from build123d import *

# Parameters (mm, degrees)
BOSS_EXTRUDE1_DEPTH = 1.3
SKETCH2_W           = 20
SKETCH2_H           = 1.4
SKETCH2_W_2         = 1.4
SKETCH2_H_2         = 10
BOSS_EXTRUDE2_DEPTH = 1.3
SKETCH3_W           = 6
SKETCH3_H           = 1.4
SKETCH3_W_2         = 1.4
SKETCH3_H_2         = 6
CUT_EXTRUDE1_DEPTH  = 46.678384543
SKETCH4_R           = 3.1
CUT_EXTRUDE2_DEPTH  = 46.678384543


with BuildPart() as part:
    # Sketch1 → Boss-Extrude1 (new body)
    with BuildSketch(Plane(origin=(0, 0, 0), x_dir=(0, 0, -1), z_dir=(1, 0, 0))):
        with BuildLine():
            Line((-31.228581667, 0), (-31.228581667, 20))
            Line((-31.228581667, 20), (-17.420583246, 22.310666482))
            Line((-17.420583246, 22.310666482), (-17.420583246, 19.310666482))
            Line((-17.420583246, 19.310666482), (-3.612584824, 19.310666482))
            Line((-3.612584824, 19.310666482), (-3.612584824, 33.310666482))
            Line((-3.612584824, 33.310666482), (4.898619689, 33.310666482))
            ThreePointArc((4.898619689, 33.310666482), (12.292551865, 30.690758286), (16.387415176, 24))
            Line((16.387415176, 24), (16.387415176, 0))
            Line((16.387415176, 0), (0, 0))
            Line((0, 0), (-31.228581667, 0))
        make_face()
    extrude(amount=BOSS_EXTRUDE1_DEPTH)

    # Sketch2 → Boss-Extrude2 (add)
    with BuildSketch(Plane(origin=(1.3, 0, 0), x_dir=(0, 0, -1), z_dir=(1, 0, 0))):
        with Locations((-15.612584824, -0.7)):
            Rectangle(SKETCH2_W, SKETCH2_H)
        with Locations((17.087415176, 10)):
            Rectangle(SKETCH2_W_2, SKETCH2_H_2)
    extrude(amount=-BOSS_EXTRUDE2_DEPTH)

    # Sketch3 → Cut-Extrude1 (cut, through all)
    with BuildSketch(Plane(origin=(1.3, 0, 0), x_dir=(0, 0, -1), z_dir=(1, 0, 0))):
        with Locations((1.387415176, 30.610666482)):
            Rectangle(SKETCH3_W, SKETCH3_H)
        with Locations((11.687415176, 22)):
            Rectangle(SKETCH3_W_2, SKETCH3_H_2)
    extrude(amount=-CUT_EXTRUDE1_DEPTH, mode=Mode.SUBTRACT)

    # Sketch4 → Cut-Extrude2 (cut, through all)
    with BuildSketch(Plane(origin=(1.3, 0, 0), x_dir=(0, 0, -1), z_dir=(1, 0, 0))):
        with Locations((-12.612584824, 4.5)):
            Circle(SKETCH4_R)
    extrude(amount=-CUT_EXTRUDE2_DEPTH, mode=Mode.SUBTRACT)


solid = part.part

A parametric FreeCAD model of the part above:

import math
import FreeCAD as App
import Part
import Sketcher

V = App.Vector
Q = App.Units.Quantity


def add_polygon(sketch, points):
    """Adds a closed chain of lines whose ends are joined by coincident constraints."""
    first, n = sketch.GeometryCount, len(points)
    for a, b in zip(points, points[1:] + points[:1]):
        sketch.addGeometry(Part.LineSegment(App.Vector(*a, 0), App.Vector(*b, 0)), False)
    for i in range(n):
        sketch.addConstraint(Sketcher.Constraint("Coincident", first + i, 2, first + (i + 1) % n, 1))

doc = App.newDocument("Part")
params = doc.addObject("Spreadsheet::Sheet", "Params")
for row, (alias, value) in enumerate([
    ("sketch1_width", "20 mm"),
    ("sketch1_width2", "24 mm"),
    ("sketch1_width3", "14 mm"),
    ("sketch1_width4", "3 mm"),
    ("sketch1_length", "14 mm"),
    ("pad1_length", "1.3 mm"),
    ("sketch2_width", "10 mm"),
    ("sketch2_height", "20 mm"),
    ("sketch2_width2", "1.4 mm"),
    ("pad2_length", "1.3 mm"),
    ("sketch3_width", "6 mm"),
    ("sketch3_width2", "1.4 mm"),
    ("sketch4_diameter", "6.2 mm"),
], start=1):
    params.set(f"A{row}", alias)
    params.set(f"B{row}", "=" + value)
    params.setAlias(f"B{row}", alias)

body = doc.addObject("PartDesign::Body", "Body")

sketch1 = body.newObject("Sketcher::SketchObject", "Sketch")
sketch1.AttachmentSupport = (doc.getObject("YZ_Plane"), [""])
sketch1.MapMode = "FlatFace"
sketch1.addGeometry(Part.LineSegment(V(20, 31.2, 0), V(0, 31.2, 0)), False)
sketch1.addGeometry(Part.LineSegment(V(0, 31.2, 0), V(0, -16.4, 0)), False)
sketch1.addGeometry(Part.LineSegment(V(0, -16.4, 0), V(24, -16.4, 0)), False)
sketch1.addGeometry(Part.ArcOfCircle(Part.Circle(V(21.6, -4.9, 0), V(0, 0, 1), 11.7), math.radians(-78), math.radians(0)), False)
sketch1.addGeometry(Part.LineSegment(V(33.3, -4.9, 0), V(33.3, 3.6, 0)), False)
sketch1.addGeometry(Part.LineSegment(V(33.3, 3.6, 0), V(19.3, 3.6, 0)), False)
sketch1.addGeometry(Part.LineSegment(V(19.3, 3.6, 0), V(19.3, 17.4, 0)), False)
sketch1.addGeometry(Part.LineSegment(V(19.3, 17.4, 0), V(22.3, 17.4, 0)), False)
sketch1.addGeometry(Part.LineSegment(V(22.3, 17.4, 0), V(20, 31.2, 0)), False)
sketch1.addConstraint(Sketcher.Constraint("Coincident", 0, 2, 1, 1))
sketch1.addConstraint(Sketcher.Constraint("Coincident", 1, 2, 2, 1))
sketch1.addConstraint(Sketcher.Constraint("Coincident", 2, 2, 3, 1))
sketch1.addConstraint(Sketcher.Constraint("Tangent", 3, 2, 4, 1))
sketch1.addConstraint(Sketcher.Constraint("Coincident", 4, 2, 5, 1))
sketch1.addConstraint(Sketcher.Constraint("Coincident", 5, 2, 6, 1))
sketch1.addConstraint(Sketcher.Constraint("Coincident", 6, 2, 7, 1))
sketch1.addConstraint(Sketcher.Constraint("Coincident", 7, 2, 8, 1))
sketch1.addConstraint(Sketcher.Constraint("Coincident", 8, 2, 0, 1))
sketch1.addConstraint(Sketcher.Constraint("Horizontal", 0))
sketch1.addConstraint(Sketcher.Constraint("Vertical", 1))
sketch1.addConstraint(Sketcher.Constraint("Horizontal", 2))
sketch1.addConstraint(Sketcher.Constraint("Vertical", 4))
sketch1.addConstraint(Sketcher.Constraint("Horizontal", 5))
sketch1.addConstraint(Sketcher.Constraint("Vertical", 6))
sketch1.addConstraint(Sketcher.Constraint("Horizontal", 7))
sketch1.addConstraint(Sketcher.Constraint("PointOnObject", 0, 2, -2))
sketch1.addConstraint(Sketcher.Constraint("DistanceX", 0, 2, 0, 1, 20.0))
sketch1.addConstraint(Sketcher.Constraint("DistanceX", 2, 1, 2, 2, 24.0))
sketch1.addConstraint(Sketcher.Constraint("DistanceX", 5, 2, 5, 1, 14.0))
sketch1.addConstraint(Sketcher.Constraint("DistanceX", 7, 1, 7, 2, 3.0))
sketch1.addConstraint(Sketcher.Constraint("Distance", 8, 14.0))
sketch1.addConstraint(Sketcher.Constraint("Angle", 8, Q("99.5 deg")))
sketch1.addConstraint(Sketcher.Constraint("DistanceY", 2, 2, 4, 2, 20.0))
sketch1.addConstraint(Sketcher.Constraint("DistanceY", 6, 1, 6, 2, 13.807998))
sketch1.addConstraint(Sketcher.Constraint("Radius", 3, 11.74357))
sketch1.addConstraint(Sketcher.Constraint("DistanceY", 3, 3, -1, 1, 4.89862))
sketch1.setExpression("Constraints[17]", "Params.sketch1_width")
sketch1.setExpression("Constraints[18]", "Params.sketch1_width2")
sketch1.setExpression("Constraints[19]", "Params.sketch1_width3")
sketch1.setExpression("Constraints[20]", "Params.sketch1_width4")
sketch1.setExpression("Constraints[21]", "Params.sketch1_length")
pad1 = body.newObject("PartDesign::Pad", "Pad")
pad1.Profile = sketch1
pad1.setExpression("Length", "Params.pad1_length")

sketch2 = body.newObject("Sketcher::SketchObject", "Sketch001")
sketch2.AttachmentSupport = (doc.getObject("YZ_Plane"), [""])
sketch2.MapMode = "FlatFace"
sketch2.AttachmentOffset = App.Placement(V(0, 0, 1.3), App.Rotation())
add_polygon(sketch2, [(0, 25.6), (-1.4, 25.6), (-1.4, 5.6), (0, 5.6)])
add_polygon(sketch2, [(15, -16.4), (5, -16.4), (5, -17.8), (15, -17.8)])
sketch2.addConstraint(Sketcher.Constraint("Horizontal", 0))
sketch2.addConstraint(Sketcher.Constraint("Vertical", 1))
sketch2.addConstraint(Sketcher.Constraint("Horizontal", 2))
sketch2.addConstraint(Sketcher.Constraint("Vertical", 3))
sketch2.addConstraint(Sketcher.Constraint("Horizontal", 4))
sketch2.addConstraint(Sketcher.Constraint("Vertical", 5))
sketch2.addConstraint(Sketcher.Constraint("Horizontal", 6))
sketch2.addConstraint(Sketcher.Constraint("Vertical", 7))
sketch2.addConstraint(Sketcher.Constraint("PointOnObject", 2, 2, -2))
sketch2.addConstraint(Sketcher.Constraint("Equal", 2, 5))
sketch2.addConstraint(Sketcher.Constraint("DistanceX", 4, 2, 4, 1, 10.0))
sketch2.addConstraint(Sketcher.Constraint("DistanceY", 1, 2, 1, 1, 20.0))
sketch2.addConstraint(Sketcher.Constraint("DistanceX", 0, 2, 0, 1, 1.4))
sketch2.addConstraint(Sketcher.Constraint("DistanceX", -1, 1, 4, 2, 5.0))
sketch2.addConstraint(Sketcher.Constraint("DistanceY", 4, 2, 2, 2, 22.0))
sketch2.addConstraint(Sketcher.Constraint("DistanceY", -1, 1, 0, 2, 25.612585))
sketch2.setExpression("Constraints[18]", "Params.sketch2_width")
sketch2.setExpression("Constraints[19]", "Params.sketch2_height")
sketch2.setExpression("Constraints[20]", "Params.sketch2_width2")
pad2 = body.newObject("PartDesign::Pad", "Pad001")
pad2.Profile = sketch2
pad2.setExpression("Length", "Params.pad2_length")
pad2.Reversed = True

sketch3 = body.newObject("Sketcher::SketchObject", "Sketch002")
sketch3.AttachmentSupport = (doc.getObject("YZ_Plane"), [""])
sketch3.MapMode = "FlatFace"
sketch3.AttachmentOffset = App.Placement(V(0, 0, 1.3), App.Rotation())
add_polygon(sketch3, [(31.3, 1.6), (29.9, 1.6), (29.9, -4.4), (31.3, -4.4)])
add_polygon(sketch3, [(25, -11), (19, -11), (19, -12.4), (25, -12.4)])
sketch3.addConstraint(Sketcher.Constraint("Horizontal", 0))
sketch3.addConstraint(Sketcher.Constraint("Vertical", 1))
sketch3.addConstraint(Sketcher.Constraint("Horizontal", 2))
sketch3.addConstraint(Sketcher.Constraint("Vertical", 3))
sketch3.addConstraint(Sketcher.Constraint("Horizontal", 4))
sketch3.addConstraint(Sketcher.Constraint("Vertical", 5))
sketch3.addConstraint(Sketcher.Constraint("Horizontal", 6))
sketch3.addConstraint(Sketcher.Constraint("Vertical", 7))
sketch3.addConstraint(Sketcher.Constraint("Equal", 6, 1))
sketch3.addConstraint(Sketcher.Constraint("Equal", 2, 5))
sketch3.addConstraint(Sketcher.Constraint("DistanceX", 4, 2, 4, 1, 6.0))
sketch3.addConstraint(Sketcher.Constraint("DistanceX", 0, 2, 0, 1, 1.4))
sketch3.addConstraint(Sketcher.Constraint("DistanceX", -1, 1, 4, 2, 19.0))
sketch3.addConstraint(Sketcher.Constraint("DistanceY", 5, 2, 1, 2, 8.0))
sketch3.addConstraint(Sketcher.Constraint("DistanceX", -1, 1, 0, 2, 29.910666))
sketch3.addConstraint(Sketcher.Constraint("DistanceY", -1, 1, 0, 2, 1.612585))
sketch3.setExpression("Constraints[18]", "Params.sketch3_width")
sketch3.setExpression("Constraints[19]", "Params.sketch3_width2")
pocket1 = body.newObject("PartDesign::Pocket", "Pocket")
pocket1.Profile = sketch3
pocket1.Type = "ThroughAll"

sketch4 = body.newObject("Sketcher::SketchObject", "Sketch003")
sketch4.AttachmentSupport = (doc.getObject("YZ_Plane"), [""])
sketch4.MapMode = "FlatFace"
sketch4.AttachmentOffset = App.Placement(V(0, 0, 1.3), App.Rotation())
sketch4.addGeometry(Part.Circle(V(4.5, 12.6, 0), V(0, 0, 1), 3.1), False)
sketch4.addConstraint(Sketcher.Constraint("Diameter", 0, 6.2))
sketch4.addConstraint(Sketcher.Constraint("DistanceX", -1, 1, 0, 3, 4.5))
sketch4.addConstraint(Sketcher.Constraint("DistanceY", -1, 1, 0, 3, 12.612585))
sketch4.setExpression("Constraints[0]", "Params.sketch4_diameter")
pocket2 = body.newObject("PartDesign::Pocket", "Pocket001")
pocket2.Profile = sketch4
pocket2.Type = "ThroughAll"

doc.recompute()
